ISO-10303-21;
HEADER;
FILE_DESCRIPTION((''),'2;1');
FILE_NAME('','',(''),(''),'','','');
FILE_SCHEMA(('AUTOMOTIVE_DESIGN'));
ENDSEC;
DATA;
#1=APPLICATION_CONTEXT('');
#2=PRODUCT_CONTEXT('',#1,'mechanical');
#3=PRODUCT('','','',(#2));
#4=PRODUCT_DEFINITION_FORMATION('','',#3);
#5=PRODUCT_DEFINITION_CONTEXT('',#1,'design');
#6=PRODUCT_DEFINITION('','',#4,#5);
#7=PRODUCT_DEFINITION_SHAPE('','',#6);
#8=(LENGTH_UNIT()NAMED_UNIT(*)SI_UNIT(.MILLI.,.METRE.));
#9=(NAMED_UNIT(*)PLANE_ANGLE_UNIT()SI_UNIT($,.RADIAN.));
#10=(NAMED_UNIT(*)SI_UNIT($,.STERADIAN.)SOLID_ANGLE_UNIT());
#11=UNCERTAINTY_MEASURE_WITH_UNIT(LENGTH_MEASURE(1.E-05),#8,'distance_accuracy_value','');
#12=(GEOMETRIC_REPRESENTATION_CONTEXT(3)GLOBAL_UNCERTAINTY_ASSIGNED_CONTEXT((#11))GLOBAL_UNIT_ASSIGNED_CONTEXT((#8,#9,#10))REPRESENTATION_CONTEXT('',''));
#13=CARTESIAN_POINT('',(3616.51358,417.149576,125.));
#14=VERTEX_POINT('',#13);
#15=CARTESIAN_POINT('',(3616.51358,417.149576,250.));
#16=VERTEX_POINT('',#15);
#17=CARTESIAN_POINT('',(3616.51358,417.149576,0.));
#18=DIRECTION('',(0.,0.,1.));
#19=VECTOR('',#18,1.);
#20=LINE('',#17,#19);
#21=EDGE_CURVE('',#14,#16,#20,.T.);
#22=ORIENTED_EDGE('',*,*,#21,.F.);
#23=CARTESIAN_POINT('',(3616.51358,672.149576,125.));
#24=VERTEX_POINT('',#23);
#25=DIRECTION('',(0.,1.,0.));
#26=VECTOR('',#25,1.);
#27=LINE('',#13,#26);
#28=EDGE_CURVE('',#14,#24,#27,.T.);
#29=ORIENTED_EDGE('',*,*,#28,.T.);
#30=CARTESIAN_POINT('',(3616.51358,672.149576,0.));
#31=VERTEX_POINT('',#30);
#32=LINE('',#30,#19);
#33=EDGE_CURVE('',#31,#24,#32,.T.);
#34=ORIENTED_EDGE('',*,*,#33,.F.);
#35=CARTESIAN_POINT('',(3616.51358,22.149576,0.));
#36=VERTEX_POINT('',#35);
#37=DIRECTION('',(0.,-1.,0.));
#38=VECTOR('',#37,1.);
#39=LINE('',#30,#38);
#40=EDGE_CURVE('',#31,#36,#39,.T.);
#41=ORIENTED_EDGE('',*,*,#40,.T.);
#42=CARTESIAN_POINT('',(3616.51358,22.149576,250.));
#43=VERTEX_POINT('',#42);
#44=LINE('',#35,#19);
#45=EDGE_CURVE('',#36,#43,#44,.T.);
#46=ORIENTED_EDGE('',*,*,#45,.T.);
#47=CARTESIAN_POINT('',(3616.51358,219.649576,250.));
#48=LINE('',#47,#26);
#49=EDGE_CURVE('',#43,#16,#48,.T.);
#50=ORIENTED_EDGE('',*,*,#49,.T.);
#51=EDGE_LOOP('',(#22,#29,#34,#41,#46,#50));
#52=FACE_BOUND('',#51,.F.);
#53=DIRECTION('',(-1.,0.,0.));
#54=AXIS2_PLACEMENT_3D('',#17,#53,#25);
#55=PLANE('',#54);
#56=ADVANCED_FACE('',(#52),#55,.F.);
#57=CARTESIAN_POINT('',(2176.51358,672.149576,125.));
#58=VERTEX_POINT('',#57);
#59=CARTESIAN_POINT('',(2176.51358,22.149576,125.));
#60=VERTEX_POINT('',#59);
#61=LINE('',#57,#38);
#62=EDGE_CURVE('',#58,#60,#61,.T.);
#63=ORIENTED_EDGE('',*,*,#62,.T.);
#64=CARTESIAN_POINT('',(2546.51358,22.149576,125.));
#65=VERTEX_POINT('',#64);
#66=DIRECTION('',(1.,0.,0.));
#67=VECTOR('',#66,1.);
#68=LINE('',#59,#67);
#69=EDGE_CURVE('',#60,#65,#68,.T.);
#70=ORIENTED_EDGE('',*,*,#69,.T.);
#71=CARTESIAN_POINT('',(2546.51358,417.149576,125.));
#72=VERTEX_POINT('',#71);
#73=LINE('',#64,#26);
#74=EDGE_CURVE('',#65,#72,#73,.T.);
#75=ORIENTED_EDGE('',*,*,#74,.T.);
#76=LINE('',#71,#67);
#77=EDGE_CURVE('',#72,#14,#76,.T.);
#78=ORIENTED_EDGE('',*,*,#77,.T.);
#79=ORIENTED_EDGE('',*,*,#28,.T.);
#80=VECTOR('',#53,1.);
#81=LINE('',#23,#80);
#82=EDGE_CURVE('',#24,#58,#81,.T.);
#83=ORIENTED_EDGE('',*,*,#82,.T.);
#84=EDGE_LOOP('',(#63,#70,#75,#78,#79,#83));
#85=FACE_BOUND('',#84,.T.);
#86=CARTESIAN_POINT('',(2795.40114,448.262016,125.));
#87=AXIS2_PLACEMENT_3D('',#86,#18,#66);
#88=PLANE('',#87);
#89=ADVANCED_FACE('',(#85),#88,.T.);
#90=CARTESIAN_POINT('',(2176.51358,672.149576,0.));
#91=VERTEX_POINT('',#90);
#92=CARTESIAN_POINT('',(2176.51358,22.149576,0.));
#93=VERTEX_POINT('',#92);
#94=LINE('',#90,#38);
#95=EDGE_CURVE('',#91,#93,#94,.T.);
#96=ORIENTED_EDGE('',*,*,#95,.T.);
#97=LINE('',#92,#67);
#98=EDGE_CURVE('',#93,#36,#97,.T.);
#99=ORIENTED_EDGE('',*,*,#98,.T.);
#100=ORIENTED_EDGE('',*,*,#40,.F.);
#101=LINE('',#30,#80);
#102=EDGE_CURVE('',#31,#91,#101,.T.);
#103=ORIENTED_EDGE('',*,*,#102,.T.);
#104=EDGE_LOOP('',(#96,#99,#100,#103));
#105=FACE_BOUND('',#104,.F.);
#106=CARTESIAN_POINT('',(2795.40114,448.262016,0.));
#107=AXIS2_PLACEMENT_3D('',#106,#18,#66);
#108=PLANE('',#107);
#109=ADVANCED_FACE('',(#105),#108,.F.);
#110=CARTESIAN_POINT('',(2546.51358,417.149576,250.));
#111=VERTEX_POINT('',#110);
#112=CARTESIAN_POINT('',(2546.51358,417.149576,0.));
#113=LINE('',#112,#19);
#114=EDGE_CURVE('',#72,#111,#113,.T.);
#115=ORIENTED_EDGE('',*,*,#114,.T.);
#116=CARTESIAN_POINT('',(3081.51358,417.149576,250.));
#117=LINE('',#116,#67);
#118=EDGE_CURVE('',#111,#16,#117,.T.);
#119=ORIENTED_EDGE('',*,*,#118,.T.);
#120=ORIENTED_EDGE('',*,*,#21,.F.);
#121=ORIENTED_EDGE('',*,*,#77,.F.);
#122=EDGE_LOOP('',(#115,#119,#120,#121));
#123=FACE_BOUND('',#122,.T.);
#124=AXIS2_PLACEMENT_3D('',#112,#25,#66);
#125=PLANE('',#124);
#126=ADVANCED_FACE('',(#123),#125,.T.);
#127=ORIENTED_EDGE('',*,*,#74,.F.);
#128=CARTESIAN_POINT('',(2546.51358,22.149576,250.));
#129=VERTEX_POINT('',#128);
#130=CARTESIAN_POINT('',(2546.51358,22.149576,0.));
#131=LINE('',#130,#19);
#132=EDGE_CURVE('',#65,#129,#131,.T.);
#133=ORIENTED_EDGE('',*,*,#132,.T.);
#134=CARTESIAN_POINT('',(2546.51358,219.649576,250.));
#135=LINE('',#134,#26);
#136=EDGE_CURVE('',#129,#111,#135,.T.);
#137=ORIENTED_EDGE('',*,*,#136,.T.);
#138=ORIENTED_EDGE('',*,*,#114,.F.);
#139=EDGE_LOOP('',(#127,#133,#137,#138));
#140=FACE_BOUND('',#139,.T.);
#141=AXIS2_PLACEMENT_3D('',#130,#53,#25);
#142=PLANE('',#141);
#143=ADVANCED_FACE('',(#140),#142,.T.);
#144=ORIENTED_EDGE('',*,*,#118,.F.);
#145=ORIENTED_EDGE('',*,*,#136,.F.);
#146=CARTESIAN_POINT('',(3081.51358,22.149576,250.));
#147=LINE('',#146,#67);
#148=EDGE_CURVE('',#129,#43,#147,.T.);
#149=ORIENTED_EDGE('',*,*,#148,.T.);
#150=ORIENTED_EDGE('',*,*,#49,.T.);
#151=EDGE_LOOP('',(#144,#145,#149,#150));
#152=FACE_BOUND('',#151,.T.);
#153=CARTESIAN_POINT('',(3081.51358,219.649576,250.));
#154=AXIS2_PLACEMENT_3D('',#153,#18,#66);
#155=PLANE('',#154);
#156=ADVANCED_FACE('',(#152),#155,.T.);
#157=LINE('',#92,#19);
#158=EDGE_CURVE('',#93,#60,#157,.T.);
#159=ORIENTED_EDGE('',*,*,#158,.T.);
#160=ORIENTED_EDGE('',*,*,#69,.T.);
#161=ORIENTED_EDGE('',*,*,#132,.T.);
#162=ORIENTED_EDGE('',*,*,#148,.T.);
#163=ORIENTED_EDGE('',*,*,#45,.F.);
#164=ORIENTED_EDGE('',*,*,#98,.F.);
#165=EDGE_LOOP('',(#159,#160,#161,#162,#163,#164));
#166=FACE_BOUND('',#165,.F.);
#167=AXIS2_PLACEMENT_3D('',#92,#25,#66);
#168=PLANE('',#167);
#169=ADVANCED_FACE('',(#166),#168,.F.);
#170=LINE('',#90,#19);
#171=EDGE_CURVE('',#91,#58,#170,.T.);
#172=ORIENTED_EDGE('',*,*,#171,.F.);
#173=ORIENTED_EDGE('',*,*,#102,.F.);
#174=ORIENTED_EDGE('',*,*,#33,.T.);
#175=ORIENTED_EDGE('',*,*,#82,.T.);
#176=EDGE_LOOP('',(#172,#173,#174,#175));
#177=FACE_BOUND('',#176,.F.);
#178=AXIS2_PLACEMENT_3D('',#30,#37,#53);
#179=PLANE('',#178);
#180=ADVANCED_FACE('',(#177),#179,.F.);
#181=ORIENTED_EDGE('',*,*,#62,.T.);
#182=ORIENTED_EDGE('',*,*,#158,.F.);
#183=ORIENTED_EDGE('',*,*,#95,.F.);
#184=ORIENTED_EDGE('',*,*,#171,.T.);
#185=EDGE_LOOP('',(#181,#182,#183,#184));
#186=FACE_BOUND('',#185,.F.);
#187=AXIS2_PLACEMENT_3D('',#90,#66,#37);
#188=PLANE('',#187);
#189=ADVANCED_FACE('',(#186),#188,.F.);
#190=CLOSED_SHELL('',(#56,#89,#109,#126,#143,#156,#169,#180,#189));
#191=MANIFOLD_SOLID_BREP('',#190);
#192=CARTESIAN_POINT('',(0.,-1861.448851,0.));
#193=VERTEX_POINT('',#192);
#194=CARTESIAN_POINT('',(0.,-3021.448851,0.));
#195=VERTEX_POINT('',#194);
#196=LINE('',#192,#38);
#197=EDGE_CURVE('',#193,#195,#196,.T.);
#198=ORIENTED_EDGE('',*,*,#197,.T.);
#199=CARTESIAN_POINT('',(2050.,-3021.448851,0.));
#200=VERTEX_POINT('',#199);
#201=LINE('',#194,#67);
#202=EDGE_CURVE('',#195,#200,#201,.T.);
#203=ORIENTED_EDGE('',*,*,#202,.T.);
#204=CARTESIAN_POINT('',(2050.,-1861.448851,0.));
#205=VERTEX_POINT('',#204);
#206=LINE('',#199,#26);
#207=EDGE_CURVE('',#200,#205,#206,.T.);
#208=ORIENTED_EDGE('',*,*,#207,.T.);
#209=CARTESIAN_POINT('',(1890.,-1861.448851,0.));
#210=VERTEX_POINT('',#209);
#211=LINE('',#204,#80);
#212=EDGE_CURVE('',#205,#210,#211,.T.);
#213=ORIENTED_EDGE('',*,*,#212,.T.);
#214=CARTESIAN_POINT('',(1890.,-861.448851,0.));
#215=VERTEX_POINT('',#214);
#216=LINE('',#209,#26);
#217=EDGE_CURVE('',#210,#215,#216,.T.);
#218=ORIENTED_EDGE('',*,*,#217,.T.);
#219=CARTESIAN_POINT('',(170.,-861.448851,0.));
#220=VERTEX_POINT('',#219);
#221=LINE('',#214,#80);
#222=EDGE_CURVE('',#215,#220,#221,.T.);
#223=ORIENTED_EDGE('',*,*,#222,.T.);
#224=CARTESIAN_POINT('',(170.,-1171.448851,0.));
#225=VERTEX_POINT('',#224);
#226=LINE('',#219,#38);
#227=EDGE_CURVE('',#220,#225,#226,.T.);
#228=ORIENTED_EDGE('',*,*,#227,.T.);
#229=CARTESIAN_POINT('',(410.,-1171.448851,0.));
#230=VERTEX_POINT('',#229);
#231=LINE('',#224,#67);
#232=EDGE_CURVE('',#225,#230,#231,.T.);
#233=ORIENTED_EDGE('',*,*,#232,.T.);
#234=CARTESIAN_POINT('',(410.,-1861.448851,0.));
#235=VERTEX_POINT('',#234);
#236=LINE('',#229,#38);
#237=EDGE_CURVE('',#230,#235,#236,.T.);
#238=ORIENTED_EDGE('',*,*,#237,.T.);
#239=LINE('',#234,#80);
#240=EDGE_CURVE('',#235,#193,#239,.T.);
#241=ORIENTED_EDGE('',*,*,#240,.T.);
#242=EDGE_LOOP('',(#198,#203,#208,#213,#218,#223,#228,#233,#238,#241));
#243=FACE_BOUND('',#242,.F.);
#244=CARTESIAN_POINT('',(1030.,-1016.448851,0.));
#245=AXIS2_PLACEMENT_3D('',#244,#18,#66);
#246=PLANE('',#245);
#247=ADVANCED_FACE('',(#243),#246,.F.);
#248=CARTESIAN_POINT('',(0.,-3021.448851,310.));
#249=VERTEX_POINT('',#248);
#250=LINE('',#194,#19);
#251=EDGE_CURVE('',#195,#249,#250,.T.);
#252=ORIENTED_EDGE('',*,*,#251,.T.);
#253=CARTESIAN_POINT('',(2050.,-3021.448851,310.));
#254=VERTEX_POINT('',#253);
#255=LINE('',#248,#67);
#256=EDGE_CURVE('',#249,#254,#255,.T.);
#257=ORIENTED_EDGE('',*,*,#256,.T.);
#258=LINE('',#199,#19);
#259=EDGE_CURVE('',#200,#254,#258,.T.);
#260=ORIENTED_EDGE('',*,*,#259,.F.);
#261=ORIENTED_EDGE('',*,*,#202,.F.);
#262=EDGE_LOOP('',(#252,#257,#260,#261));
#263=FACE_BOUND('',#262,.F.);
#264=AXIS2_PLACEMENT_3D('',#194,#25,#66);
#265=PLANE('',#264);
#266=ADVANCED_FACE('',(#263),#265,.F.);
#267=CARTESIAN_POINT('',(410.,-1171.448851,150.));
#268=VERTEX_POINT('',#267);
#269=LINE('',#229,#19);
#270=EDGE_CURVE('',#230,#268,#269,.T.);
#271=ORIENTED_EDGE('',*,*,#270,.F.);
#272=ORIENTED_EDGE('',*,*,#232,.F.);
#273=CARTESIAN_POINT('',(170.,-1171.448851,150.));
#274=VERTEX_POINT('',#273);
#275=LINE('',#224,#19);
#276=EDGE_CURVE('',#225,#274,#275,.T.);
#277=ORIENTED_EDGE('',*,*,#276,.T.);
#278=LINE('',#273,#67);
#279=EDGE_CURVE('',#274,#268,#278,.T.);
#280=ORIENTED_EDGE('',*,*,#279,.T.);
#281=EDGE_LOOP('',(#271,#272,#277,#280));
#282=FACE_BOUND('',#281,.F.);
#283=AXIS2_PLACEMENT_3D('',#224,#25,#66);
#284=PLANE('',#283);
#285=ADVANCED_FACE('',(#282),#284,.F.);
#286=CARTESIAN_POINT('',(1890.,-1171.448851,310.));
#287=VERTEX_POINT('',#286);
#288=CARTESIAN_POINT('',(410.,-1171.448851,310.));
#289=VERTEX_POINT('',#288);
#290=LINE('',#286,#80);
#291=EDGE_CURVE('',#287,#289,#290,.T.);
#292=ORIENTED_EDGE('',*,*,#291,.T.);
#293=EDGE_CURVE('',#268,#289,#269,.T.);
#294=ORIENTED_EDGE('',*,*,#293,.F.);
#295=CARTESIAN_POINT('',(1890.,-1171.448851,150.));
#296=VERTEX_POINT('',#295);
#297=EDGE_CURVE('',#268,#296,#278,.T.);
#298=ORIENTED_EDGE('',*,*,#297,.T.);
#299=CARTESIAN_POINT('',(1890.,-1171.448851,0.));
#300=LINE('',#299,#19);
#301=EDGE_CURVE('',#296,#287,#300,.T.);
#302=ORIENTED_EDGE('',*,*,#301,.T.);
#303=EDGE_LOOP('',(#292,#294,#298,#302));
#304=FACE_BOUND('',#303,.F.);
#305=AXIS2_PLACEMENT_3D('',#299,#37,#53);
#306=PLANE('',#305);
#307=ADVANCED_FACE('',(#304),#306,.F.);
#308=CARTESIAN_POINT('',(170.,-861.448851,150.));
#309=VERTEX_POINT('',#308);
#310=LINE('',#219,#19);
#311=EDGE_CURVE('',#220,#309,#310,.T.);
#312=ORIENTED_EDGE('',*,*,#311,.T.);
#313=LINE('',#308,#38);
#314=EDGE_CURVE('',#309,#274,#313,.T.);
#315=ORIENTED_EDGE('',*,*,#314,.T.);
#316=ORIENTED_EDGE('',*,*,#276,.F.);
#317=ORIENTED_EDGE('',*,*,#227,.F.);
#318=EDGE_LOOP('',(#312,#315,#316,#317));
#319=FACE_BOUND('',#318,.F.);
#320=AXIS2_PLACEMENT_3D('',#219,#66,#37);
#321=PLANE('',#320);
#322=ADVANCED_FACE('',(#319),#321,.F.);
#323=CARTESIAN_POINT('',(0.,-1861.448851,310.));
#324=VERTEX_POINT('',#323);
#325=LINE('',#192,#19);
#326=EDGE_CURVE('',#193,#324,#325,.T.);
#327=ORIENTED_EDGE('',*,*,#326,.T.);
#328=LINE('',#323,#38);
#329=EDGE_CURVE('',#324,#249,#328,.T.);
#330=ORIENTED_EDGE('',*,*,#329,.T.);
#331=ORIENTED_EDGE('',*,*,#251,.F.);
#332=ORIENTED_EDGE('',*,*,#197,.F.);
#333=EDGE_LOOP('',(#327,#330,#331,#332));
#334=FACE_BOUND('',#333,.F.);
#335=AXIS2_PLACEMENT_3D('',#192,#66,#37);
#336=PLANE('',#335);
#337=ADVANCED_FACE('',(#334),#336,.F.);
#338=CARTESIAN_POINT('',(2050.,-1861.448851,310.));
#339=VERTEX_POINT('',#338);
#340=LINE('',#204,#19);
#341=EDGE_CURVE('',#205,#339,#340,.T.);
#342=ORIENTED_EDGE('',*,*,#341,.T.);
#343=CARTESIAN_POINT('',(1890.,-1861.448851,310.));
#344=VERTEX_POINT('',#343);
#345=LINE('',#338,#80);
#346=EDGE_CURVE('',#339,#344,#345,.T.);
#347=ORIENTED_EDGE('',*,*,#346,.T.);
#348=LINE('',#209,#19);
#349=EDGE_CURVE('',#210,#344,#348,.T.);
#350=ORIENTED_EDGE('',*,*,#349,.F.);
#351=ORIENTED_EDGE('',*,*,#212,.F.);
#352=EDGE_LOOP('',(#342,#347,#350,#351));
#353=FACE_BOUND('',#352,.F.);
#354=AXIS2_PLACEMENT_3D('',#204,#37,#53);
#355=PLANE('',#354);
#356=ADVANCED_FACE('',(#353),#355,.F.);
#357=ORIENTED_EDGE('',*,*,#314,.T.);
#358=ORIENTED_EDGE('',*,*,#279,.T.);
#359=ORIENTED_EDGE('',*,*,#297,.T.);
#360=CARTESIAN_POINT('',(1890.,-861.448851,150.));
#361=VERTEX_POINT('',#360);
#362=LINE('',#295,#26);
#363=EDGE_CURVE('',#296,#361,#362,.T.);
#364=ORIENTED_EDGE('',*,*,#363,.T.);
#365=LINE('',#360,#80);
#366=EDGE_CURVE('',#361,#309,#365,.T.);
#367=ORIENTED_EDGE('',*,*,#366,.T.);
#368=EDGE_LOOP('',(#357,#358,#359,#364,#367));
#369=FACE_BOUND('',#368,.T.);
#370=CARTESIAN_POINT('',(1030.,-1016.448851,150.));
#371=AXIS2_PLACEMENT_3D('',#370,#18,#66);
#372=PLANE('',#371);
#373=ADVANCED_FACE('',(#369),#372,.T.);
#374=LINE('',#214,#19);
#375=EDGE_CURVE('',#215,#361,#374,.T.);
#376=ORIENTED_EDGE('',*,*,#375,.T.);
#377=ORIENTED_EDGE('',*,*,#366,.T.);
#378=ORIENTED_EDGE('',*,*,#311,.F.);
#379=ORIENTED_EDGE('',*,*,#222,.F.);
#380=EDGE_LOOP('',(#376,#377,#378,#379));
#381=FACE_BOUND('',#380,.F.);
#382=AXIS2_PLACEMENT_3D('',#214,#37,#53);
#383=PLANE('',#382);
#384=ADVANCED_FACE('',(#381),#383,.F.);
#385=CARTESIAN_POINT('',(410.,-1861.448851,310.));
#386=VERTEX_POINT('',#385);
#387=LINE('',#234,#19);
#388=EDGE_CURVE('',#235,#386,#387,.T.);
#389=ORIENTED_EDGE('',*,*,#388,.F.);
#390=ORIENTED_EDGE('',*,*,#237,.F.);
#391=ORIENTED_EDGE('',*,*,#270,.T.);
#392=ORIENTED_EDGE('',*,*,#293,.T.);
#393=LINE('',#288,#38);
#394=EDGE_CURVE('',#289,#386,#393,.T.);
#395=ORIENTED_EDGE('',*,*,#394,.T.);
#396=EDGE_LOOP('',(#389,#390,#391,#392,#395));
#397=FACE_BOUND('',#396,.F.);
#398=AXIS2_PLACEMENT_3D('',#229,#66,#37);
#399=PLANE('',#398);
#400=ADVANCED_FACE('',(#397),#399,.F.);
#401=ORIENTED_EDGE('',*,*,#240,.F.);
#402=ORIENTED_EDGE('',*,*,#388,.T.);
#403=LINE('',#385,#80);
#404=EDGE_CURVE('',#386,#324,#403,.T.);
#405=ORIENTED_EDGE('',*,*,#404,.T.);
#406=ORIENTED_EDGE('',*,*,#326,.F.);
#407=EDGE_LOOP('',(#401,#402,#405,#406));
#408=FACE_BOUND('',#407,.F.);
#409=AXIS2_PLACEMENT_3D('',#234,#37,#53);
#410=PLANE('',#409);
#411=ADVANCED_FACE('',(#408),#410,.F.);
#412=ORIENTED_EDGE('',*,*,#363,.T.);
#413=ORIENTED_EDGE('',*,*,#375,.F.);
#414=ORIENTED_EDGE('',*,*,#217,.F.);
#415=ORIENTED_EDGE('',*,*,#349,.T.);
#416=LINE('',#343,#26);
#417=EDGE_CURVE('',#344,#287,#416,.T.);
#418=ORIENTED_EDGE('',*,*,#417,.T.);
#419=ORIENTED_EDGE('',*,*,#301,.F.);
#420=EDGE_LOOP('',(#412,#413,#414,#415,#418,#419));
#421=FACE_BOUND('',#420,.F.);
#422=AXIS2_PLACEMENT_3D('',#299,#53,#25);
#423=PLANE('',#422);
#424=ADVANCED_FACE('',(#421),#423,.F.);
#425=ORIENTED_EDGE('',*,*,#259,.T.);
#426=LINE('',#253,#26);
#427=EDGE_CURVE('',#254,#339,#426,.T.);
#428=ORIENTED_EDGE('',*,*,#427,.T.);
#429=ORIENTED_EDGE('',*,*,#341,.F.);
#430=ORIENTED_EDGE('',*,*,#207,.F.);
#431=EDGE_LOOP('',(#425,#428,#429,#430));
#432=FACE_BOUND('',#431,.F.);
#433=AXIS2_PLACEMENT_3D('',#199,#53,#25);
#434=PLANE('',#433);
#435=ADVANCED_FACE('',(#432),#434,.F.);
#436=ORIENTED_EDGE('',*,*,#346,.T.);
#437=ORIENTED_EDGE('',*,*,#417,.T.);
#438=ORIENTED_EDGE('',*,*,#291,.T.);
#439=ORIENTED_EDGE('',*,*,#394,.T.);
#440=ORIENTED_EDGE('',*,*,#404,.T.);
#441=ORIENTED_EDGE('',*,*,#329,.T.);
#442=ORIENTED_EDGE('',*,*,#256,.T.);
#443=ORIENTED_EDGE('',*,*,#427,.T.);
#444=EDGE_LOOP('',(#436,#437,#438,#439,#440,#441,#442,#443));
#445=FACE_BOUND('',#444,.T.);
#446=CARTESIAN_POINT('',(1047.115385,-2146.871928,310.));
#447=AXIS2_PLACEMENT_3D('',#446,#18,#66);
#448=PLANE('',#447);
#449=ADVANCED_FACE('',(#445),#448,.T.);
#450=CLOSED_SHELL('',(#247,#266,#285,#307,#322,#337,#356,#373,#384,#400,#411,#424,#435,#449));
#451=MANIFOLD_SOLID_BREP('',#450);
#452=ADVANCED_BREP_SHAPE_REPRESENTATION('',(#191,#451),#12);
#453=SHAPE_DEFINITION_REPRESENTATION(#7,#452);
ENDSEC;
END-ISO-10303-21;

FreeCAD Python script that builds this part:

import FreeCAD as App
import Part
import Sketcher


def add_polygon(sketch, points):
    """Adds a closed chain of lines whose ends are joined by coincident constraints."""
    first, n = sketch.GeometryCount, len(points)
    for a, b in zip(points, points[1:] + points[:1]):
        sketch.addGeometry(Part.LineSegment(App.Vector(*a, 0), App.Vector(*b, 0)), False)
    for i in range(n):
        sketch.addConstraint(Sketcher.Constraint("Coincident", first + i, 2, first + (i + 1) % n, 1))

doc = App.newDocument("Part")
body = doc.addObject("PartDesign::Body", "Body")

# Sketch on XY plane
sketch1 = doc.addObject("Sketcher::SketchObject", "Sketch")
body.addObject(sketch1)
sketch1.AttachmentSupport = (doc.XY_Plane, [""])
sketch1.MapMode = "FlatFace"
add_polygon(sketch1, [(2547, 417), (2547, 22), (3617, 22), (3617, 417)])  # lines 0-3
sketch1.addConstraint([
    Sketcher.Constraint("Vertical", 0),
    Sketcher.Constraint("Horizontal", 1),
    Sketcher.Constraint("Vertical", 2),
    Sketcher.Constraint("Horizontal", 3),
    Sketcher.Constraint("DistanceX", 1, 1, 1, 2, 1070.0),
    Sketcher.Constraint("DistanceY", 0, 2, 0, 1, 395.0),
    Sketcher.Constraint("DistanceX", -1, 1, 0, 2, 2546.51358),
    Sketcher.Constraint("DistanceY", -1, 1, 0, 2, 22.149576),
])
pad1 = doc.addObject("PartDesign::Pad", "Pad")
body.addObject(pad1)
pad1.Profile = sketch1
pad1.Length = 250

# Sketch on XY plane
sketch2 = doc.addObject("Sketcher::SketchObject", "Sketch001")
body.addObject(sketch2)
sketch2.AttachmentSupport = (doc.XY_Plane, [""])
sketch2.MapMode = "FlatFace"
add_polygon(sketch2, [(2177, 672), (2177, 22), (2547, 22), (2547, 417), (3617, 417), (3617, 672)])  # lines 0-5
sketch2.addConstraint([
    Sketcher.Constraint("Vertical", 0),
    Sketcher.Constraint("Horizontal", 1),
    Sketcher.Constraint("Vertical", 2),
    Sketcher.Constraint("Horizontal", 3),
    Sketcher.Constraint("Vertical", 4),
    Sketcher.Constraint("Horizontal", 5),
    Sketcher.Constraint("DistanceX", 1, 1, 1, 2, 370.0),
    Sketcher.Constraint("DistanceX", 3, 1, 3, 2, 1070.0),
    Sketcher.Constraint("DistanceY", 0, 2, 0, 1, 650.0),
    Sketcher.Constraint("DistanceY", 2, 1, 2, 2, 395.0),
    Sketcher.Constraint("DistanceX", -1, 1, 0, 2, 2176.51358),
    Sketcher.Constraint("DistanceY", -1, 1, 0, 2, 22.149576),
])
pad2 = doc.addObject("PartDesign::Pad", "Pad001")
body.addObject(pad2)
pad2.Profile = sketch2
pad2.Length = 125
body2 = doc.addObject("PartDesign::Body", "Body001")

# Sketch on XY plane
sketch3 = doc.addObject("Sketcher::SketchObject", "Sketch002")
body2.addObject(sketch3)
sketch3.AttachmentSupport = (doc.getObject("XY_Plane001"), [""])
sketch3.MapMode = "FlatFace"
add_polygon(sketch3, [(2050, -1861), (1890, -1861), (1890, -1171), (410, -1171), (410, -1861), (0, -1861), (0, -3021), (2050, -3021)])  # lines 0-7
sketch3.addConstraint([
    Sketcher.Constraint("Horizontal", 0),
    Sketcher.Constraint("Vertical", 1),
    Sketcher.Constraint("Horizontal", 2),
    Sketcher.Constraint("Vertical", 3),
    Sketcher.Constraint("Horizontal", 4),
    Sketcher.Constraint("Vertical", 5),
    Sketcher.Constraint("Horizontal", 6),
    Sketcher.Constraint("Vertical", 7),
    Sketcher.Constraint("PointOnObject", 4, 2, -2),
    Sketcher.Constraint("Horizontal", 0, 2, 3, 2),
    Sketcher.Constraint("DistanceX", 0, 2, 0, 1, 160.0),
    Sketcher.Constraint("DistanceX", 2, 2, 2, 1, 1480.0),
    Sketcher.Constraint("DistanceX", 4, 2, 4, 1, 410.0),
    Sketcher.Constraint("DistanceY", 1, 1, 1, 2, 690.0),
    Sketcher.Constraint("DistanceY", 5, 2, 5, 1, 1160.0),
    Sketcher.Constraint("DistanceY", 0, 2, -1, 1, 1861.448851),
])
pad3 = doc.addObject("PartDesign::Pad", "Pad002")
body2.addObject(pad3)
pad3.Profile = sketch3
pad3.Length = 310

# Sketch on XY plane
sketch4 = doc.addObject("Sketcher::SketchObject", "Sketch003")
body2.addObject(sketch4)
sketch4.AttachmentSupport = (doc.getObject("XY_Plane001"), [""])
sketch4.MapMode = "FlatFace"
add_polygon(sketch4, [(1890, -1171), (1890, -861), (170, -861), (170, -1171)])  # lines 0-3
sketch4.addConstraint([
    Sketcher.Constraint("Vertical", 0),
    Sketcher.Constraint("Horizontal", 1),
    Sketcher.Constraint("Vertical", 2),
    Sketcher.Constraint("Horizontal", 3),
    Sketcher.Constraint("DistanceX", 1, 2, 1, 1, 1720.0),
    Sketcher.Constraint("DistanceY", 0, 1, 0, 2, 310.0),
    Sketcher.Constraint("DistanceX", -1, 1, 0, 2, 1890.0),
    Sketcher.Constraint("DistanceY", 0, 2, -1, 1, 861.448851),
])
pad4 = doc.addObject("PartDesign::Pad", "Pad003")
body2.addObject(pad4)
pad4.Profile = sketch4
pad4.Length = 150

doc.recompute()
